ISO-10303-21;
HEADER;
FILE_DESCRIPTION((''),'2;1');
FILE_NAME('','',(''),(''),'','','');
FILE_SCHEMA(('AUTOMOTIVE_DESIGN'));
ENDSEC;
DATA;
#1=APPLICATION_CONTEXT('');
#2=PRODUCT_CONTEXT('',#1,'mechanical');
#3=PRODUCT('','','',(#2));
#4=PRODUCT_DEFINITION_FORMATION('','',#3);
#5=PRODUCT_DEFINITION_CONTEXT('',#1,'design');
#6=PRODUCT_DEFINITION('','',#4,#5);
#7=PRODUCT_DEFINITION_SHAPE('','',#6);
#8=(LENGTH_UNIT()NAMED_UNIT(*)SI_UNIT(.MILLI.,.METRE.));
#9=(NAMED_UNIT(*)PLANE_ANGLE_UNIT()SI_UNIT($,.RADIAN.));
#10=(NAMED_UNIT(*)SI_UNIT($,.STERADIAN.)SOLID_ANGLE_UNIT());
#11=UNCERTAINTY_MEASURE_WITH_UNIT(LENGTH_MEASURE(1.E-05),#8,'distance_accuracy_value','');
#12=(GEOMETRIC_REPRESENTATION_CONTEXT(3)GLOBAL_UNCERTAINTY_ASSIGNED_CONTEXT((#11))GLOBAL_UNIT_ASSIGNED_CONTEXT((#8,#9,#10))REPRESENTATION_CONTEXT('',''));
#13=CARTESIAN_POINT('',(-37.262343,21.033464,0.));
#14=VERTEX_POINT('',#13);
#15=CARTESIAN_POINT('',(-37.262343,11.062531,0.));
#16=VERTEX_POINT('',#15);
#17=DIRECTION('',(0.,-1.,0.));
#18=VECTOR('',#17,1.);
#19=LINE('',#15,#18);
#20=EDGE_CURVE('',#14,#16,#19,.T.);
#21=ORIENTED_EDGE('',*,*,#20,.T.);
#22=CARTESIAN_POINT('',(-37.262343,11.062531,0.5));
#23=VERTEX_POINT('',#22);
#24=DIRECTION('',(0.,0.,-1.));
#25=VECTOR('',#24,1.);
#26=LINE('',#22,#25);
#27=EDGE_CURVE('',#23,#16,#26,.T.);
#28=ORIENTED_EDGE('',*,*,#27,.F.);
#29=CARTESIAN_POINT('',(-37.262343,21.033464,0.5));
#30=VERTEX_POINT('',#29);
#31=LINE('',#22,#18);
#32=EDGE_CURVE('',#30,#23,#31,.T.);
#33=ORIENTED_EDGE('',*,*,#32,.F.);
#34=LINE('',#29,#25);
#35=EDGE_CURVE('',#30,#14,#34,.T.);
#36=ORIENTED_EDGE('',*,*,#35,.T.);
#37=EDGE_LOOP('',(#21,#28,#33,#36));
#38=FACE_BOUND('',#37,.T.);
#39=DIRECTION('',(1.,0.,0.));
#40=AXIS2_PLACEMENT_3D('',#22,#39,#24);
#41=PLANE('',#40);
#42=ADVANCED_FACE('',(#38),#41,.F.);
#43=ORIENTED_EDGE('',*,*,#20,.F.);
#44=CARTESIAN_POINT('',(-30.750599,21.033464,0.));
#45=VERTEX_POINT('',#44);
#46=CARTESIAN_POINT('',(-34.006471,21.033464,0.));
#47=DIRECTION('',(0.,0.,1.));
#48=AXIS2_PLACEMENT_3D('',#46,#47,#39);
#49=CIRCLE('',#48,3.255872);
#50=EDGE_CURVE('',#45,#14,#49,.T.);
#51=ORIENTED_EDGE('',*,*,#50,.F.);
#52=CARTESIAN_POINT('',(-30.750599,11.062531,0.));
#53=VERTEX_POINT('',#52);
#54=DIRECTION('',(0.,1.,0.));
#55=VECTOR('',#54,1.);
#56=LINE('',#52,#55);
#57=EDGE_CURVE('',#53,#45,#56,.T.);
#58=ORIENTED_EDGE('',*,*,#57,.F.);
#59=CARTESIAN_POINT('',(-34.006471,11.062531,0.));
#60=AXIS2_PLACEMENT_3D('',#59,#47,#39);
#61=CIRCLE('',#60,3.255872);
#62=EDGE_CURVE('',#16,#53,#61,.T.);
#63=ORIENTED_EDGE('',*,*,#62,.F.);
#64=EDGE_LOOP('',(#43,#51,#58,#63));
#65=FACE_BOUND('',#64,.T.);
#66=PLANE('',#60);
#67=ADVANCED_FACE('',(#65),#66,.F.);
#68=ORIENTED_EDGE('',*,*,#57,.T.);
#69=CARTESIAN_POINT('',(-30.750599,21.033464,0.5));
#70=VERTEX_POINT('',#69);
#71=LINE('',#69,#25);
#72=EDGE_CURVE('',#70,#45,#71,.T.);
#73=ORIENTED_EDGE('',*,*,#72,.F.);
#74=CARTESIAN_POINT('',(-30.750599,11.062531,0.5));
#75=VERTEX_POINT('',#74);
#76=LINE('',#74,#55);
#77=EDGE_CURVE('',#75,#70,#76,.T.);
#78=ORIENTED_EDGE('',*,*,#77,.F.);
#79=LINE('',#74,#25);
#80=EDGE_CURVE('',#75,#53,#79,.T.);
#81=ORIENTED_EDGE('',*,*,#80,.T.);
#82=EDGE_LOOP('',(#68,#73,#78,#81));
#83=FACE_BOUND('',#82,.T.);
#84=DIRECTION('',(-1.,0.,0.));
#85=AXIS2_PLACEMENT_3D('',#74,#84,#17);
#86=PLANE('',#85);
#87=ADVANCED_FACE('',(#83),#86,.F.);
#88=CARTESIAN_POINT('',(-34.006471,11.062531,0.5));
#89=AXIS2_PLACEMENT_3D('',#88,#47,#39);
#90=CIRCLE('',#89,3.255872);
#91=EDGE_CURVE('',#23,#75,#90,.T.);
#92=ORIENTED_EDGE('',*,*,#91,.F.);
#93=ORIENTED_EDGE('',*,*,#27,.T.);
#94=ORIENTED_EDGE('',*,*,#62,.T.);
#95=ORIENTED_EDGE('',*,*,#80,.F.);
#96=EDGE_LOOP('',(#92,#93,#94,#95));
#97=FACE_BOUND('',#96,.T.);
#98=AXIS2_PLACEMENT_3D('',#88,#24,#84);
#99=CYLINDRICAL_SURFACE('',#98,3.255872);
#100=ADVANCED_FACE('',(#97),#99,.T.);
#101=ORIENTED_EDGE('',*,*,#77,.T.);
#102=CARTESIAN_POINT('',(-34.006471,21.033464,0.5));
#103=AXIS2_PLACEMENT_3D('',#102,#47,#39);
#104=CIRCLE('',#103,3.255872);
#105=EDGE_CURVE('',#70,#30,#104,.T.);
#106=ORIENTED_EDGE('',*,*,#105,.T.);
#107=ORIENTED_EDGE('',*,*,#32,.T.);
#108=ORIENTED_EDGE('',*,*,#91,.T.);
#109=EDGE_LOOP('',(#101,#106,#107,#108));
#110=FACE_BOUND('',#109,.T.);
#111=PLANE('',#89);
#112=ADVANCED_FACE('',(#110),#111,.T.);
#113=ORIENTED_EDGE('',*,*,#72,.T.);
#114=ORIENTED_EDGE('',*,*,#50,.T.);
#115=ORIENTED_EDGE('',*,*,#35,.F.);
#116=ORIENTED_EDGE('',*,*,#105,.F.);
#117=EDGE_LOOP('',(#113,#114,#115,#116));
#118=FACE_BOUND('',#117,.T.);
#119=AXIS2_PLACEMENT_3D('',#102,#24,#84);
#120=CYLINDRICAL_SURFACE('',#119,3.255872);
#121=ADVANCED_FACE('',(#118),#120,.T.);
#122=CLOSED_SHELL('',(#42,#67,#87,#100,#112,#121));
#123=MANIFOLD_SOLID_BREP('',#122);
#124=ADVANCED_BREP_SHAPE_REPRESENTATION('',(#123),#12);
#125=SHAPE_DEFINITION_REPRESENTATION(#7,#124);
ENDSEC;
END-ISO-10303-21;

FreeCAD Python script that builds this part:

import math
import FreeCAD as App
import Part
import Sketcher

V = App.Vector

doc = App.newDocument("Part")
body = doc.addObject("PartDesign::Body", "Body")

sketch1 = body.newObject("Sketcher::SketchObject", "Sketch")
sketch1.AttachmentSupport = (doc.getObject("XY_Plane"), [""])
sketch1.MapMode = "FlatFace"
sketch1.addGeometry(Part.LineSegment(V(-37.262343, 21.033464, 0), V(-37.262343, 11.062531, 0)), False)
sketch1.addGeometry(Part.ArcOfCircle(Part.Circle(V(-34.006471, 11.062531, 0), V(0, 0, 1), 3.255872), math.radians(-180), math.radians(0)), False)
sketch1.addGeometry(Part.LineSegment(V(-30.750599, 11.062531, 0), V(-30.750599, 21.033464, 0)), False)
sketch1.addGeometry(Part.ArcOfCircle(Part.Circle(V(-34.006471, 21.033464, 0), V(0, 0, 1), 3.255872), math.radians(0), math.radians(180)), False)
sketch1.addConstraint(Sketcher.Constraint("Tangent", 0, 2, 1, 1))
sketch1.addConstraint(Sketcher.Constraint("Tangent", 1, 2, 2, 1))
sketch1.addConstraint(Sketcher.Constraint("Tangent", 2, 2, 3, 1))
sketch1.addConstraint(Sketcher.Constraint("Tangent", 3, 2, 0, 1))
sketch1.addConstraint(Sketcher.Constraint("Vertical", 0))
sketch1.addConstraint(Sketcher.Constraint("Vertical", 2))
sketch1.addConstraint(Sketcher.Constraint("Radius", 1, 3.255872))
sketch1.addConstraint(Sketcher.Constraint("DistanceX", 1, 2, -1, 1, 30.750599))
sketch1.addConstraint(Sketcher.Constraint("DistanceY", 0, 2, 0, 1, 9.970933))
sketch1.addConstraint(Sketcher.Constraint("DistanceY", -1, 1, 1, 3, 11.062531))
pad1 = body.newObject("PartDesign::Pad", "Pad")
pad1.Profile = sketch1
pad1.Length = 0.5

doc.recompute()
